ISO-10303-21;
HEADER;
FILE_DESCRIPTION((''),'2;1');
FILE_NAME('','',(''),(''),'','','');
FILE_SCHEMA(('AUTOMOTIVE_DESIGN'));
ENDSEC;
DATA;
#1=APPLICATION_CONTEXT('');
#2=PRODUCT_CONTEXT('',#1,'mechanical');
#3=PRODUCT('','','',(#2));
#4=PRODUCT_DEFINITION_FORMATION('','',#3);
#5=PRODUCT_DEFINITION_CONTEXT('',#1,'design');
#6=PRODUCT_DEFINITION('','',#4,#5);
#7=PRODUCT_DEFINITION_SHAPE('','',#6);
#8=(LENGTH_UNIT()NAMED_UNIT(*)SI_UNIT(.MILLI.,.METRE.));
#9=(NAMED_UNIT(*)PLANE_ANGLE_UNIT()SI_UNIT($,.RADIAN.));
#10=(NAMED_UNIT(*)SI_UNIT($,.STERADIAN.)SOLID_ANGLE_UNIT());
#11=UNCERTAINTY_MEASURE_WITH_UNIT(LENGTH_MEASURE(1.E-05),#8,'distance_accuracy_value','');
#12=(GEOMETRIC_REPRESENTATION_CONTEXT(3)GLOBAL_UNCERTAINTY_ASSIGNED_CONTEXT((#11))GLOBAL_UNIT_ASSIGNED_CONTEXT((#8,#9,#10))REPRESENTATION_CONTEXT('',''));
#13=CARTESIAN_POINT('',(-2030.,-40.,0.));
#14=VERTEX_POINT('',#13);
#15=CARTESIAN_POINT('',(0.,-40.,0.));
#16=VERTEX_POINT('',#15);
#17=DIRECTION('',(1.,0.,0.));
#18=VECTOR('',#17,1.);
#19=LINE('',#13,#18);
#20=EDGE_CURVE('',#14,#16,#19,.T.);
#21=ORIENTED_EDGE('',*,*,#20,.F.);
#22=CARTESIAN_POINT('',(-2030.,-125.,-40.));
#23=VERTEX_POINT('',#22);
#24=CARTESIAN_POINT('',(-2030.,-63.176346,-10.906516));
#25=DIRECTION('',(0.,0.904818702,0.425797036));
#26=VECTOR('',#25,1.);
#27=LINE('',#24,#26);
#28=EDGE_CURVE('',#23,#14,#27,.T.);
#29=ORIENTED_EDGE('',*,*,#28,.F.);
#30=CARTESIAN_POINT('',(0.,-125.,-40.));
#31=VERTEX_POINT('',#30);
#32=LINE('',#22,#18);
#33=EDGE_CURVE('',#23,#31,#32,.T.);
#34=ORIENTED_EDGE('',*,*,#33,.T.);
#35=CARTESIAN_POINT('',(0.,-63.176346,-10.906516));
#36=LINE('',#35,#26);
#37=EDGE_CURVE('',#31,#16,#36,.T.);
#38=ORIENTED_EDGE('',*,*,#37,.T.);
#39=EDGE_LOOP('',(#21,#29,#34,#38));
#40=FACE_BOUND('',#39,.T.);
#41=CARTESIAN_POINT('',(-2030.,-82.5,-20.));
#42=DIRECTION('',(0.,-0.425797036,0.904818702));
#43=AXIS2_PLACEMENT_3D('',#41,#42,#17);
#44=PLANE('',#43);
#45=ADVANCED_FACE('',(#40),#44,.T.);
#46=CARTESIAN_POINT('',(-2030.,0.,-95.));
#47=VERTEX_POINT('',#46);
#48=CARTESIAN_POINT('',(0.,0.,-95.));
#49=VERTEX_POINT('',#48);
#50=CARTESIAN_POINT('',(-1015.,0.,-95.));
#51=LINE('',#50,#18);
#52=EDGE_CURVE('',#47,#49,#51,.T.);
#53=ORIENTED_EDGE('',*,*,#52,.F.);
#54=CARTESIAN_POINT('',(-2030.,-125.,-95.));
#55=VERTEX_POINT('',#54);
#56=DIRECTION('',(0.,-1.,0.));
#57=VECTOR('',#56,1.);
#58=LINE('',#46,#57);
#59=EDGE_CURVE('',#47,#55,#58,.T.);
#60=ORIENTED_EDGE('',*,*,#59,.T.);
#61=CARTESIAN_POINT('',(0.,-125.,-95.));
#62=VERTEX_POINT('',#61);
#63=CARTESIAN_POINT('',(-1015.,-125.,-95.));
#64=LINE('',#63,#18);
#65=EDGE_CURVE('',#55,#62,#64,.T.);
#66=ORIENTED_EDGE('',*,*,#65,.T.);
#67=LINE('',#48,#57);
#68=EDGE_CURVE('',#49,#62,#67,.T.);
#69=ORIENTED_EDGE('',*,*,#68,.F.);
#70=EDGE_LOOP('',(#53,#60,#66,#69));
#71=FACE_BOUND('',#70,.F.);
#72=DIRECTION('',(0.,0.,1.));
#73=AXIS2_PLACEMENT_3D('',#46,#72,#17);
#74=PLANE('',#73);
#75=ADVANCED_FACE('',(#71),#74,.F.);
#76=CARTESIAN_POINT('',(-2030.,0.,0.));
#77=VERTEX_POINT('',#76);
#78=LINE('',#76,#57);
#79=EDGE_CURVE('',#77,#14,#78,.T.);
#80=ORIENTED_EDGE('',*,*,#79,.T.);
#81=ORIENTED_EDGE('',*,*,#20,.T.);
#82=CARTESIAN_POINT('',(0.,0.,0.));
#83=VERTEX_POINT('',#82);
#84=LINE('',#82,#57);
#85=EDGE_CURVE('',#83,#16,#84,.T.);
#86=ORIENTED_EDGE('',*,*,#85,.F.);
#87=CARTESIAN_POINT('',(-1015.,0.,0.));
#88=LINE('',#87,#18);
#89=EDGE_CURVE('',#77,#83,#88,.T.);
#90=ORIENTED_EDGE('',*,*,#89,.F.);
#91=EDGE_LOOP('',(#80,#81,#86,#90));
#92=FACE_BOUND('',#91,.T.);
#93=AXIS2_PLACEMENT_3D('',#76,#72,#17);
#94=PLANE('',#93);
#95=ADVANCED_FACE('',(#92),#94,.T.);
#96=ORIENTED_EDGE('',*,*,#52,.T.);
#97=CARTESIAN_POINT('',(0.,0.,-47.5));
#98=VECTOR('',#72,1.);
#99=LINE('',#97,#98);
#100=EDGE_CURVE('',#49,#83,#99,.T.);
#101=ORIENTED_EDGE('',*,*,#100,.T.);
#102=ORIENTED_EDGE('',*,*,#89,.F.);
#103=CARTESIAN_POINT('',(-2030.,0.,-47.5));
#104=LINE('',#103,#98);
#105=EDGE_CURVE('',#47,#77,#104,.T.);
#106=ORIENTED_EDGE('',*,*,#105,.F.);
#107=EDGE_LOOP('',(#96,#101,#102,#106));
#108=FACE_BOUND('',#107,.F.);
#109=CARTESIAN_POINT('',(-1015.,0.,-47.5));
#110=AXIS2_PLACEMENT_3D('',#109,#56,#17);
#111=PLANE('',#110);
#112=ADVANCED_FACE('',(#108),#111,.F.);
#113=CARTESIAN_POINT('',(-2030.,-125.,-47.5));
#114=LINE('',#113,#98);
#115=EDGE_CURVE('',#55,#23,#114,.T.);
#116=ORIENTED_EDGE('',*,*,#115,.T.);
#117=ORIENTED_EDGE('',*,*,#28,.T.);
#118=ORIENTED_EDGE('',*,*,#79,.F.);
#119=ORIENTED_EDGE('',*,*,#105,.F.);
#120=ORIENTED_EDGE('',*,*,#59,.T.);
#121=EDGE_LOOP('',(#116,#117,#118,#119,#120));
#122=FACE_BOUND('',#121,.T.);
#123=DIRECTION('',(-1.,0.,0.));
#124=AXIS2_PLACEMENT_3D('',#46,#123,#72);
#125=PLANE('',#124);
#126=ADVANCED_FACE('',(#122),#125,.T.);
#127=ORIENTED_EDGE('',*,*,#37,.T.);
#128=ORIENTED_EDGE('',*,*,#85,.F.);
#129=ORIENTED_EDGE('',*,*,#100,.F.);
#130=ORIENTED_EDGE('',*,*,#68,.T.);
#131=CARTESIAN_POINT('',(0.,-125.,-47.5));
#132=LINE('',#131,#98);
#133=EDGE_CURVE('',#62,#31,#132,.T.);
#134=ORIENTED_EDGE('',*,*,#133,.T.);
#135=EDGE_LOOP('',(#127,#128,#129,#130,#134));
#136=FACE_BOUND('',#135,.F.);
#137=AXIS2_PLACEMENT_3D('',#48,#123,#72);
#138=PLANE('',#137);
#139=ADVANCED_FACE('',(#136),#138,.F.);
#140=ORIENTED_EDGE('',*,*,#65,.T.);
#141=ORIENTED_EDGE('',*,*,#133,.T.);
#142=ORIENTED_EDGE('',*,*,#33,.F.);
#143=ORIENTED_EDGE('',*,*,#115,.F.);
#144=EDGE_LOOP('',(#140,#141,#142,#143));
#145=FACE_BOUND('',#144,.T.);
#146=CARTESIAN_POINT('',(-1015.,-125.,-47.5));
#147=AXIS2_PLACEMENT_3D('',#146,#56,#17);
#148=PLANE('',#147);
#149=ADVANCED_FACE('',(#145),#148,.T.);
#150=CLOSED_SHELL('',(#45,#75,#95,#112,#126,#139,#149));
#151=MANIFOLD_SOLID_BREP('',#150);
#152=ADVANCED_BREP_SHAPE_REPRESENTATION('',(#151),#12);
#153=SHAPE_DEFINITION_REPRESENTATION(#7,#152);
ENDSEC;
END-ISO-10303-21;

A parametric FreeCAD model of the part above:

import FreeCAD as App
import Part
import Sketcher
from FreeCAD import Vector
Q = App.Units.Quantity


def edges_at(feature, points):
    """Names of the edges that pass closest to the given points."""
    edges = feature.Shape.Edges
    near = lambda p: min(range(len(edges)), key=lambda i: edges[i].distToShape(Part.Vertex(*p))[0])
    return sorted({f"Edge{near(p) + 1}" for p in points})

doc = App.newDocument("Part")
params = doc.addObject("Spreadsheet::Sheet", "Params")
for row, (alias, value) in enumerate([
    ("sketch1_width", "2030 mm"),
    ("sketch1_height", "95 mm"),
    ("pad1_length", "125 mm"),
    ("chamfer_size", "40 mm"),
    ("chamfer_size2", "85 mm"),
], start=1):
    params.set(f"A{row}", alias)
    params.set(f"B{row}", "=" + value)
    params.setAlias(f"B{row}", alias)

body = doc.addObject("PartDesign::Body", "Body")

sketch1 = doc.addObject("Sketcher::SketchObject", "Sketch")
body.addObject(sketch1)
sketch1.AttachmentSupport = (doc.XZ_Plane, [""])
sketch1.MapMode = "FlatFace"
sketch1.addGeometry([
    Part.LineSegment(Vector(-2030, 0, 0), Vector(-2030, -95, 0)),
    Part.LineSegment(Vector(-2030, -95, 0), Vector(0, -95, 0)),
    Part.LineSegment(Vector(0, -95, 0), Vector(0, 0, 0)),
    Part.LineSegment(Vector(0, 0, 0), Vector(-2030, 0, 0)),
], False)
sketch1.addConstraint([
    Sketcher.Constraint("Coincident", 0, 2, 1, 1),
    Sketcher.Constraint("Coincident", 1, 2, 2, 1),
    Sketcher.Constraint("Coincident", 2, 2, 3, 1),
    Sketcher.Constraint("Coincident", 3, 2, 0, 1),
    Sketcher.Constraint("Vertical", 0),
    Sketcher.Constraint("Horizontal", 1),
    Sketcher.Constraint("Vertical", 2),
    Sketcher.Constraint("Horizontal", 3),
    Sketcher.Constraint("Coincident", 2, 2, -1, 1),
    Sketcher.Constraint("DistanceX", 1, 1, 1, 2, Q("2030 mm")),
    Sketcher.Constraint("DistanceY", 0, 2, 0, 1, Q("95 mm")),
])
sketch1.setExpression("Constraints[9]", "Params.sketch1_width")
sketch1.setExpression("Constraints[10]", "Params.sketch1_height")
pad1 = doc.addObject("PartDesign::Pad", "Pad")
body.addObject(pad1)
pad1.Profile = sketch1
pad1.setExpression("Length", "Params.pad1_length")
doc.recompute()

chamfer = doc.addObject("PartDesign::Chamfer", "Chamfer")
body.addObject(chamfer)
chamfer.Base = (pad1, edges_at(pad1, [(-1015, -125, 0)]))
chamfer.ChamferType = "Two distances"
chamfer.setExpression("Size", "Params.chamfer_size")
chamfer.setExpression("Size2", "Params.chamfer_size2")
chamfer.FlipDirection = True

doc.recompute()
